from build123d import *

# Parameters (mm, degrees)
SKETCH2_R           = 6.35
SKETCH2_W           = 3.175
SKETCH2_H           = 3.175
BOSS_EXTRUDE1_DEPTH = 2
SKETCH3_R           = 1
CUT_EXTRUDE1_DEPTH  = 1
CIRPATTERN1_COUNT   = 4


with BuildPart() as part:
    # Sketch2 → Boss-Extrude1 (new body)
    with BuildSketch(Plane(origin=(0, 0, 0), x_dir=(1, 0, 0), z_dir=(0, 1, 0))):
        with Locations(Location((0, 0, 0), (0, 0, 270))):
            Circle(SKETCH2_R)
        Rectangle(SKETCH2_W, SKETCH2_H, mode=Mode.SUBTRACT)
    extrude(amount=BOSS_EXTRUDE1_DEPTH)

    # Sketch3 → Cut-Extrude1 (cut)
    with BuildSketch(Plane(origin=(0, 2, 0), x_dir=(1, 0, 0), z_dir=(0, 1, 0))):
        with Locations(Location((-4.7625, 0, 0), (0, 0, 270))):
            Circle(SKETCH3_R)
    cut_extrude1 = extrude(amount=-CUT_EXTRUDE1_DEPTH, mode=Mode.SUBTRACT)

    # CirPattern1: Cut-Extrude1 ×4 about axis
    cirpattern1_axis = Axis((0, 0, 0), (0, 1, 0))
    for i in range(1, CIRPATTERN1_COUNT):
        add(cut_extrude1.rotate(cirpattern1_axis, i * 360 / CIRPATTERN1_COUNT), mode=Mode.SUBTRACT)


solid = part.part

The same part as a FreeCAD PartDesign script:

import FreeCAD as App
import Part
import Sketcher

doc = App.newDocument("Part")
body = doc.addObject("PartDesign::Body", "Body")

# Sketch on XZ plane
sketch1 = body.newObject("Sketcher::SketchObject", "Sketch")
sketch1.AttachmentSupport = (doc.getObject("XZ_Plane"), [""])
sketch1.MapMode = "FlatFace"
sketch1.addGeometry([
    Part.Circle(App.Vector(0, 0, 0), App.Vector(0, 0, 1), 6.3),  # 0
    Part.LineSegment(App.Vector(1.6, 1.6, 0), App.Vector(-1.6, 1.6, 0)),  # 1
    Part.LineSegment(App.Vector(-1.6, 1.6, 0), App.Vector(-1.6, -1.6, 0)),  # 2
    Part.LineSegment(App.Vector(-1.6, -1.6, 0), App.Vector(1.6, -1.6, 0)),  # 3
    Part.LineSegment(App.Vector(1.6, -1.6, 0), App.Vector(1.6, 1.6, 0)),  # 4
], False)
sketch1.addConstraint([
    Sketcher.Constraint("Coincident", 1, 2, 2, 1),
    Sketcher.Constraint("Coincident", 2, 2, 3, 1),
    Sketcher.Constraint("Coincident", 3, 2, 4, 1),
    Sketcher.Constraint("Coincident", 4, 2, 1, 1),
    Sketcher.Constraint("Horizontal", 1),
    Sketcher.Constraint("Vertical", 2),
    Sketcher.Constraint("Horizontal", 3),
    Sketcher.Constraint("Vertical", 4),
    Sketcher.Constraint("Coincident", 0, 3, -1, 1),
    Sketcher.Constraint("Symmetric", 1, 2, 3, 2, -1, 1),
    Sketcher.Constraint("Equal", 3, 2),
    Sketcher.Constraint("Diameter", 0, 12.7),
    Sketcher.Constraint("DistanceX", 1, 2, 1, 1, 3.175),
])
pad1 = body.newObject("PartDesign::Pad", "Pad")
pad1.Profile = sketch1
pad1.Length = 2
pad1.Reversed = True

# Sketch on XZ plane
sketch2 = body.newObject("Sketcher::SketchObject", "Sketch001")
sketch2.AttachmentSupport = (doc.getObject("XZ_Plane"), [""])
sketch2.MapMode = "FlatFace"
sketch2.AttachmentOffset = App.Placement(App.Vector(0, 0, -2), App.Rotation())
sketch2.addGeometry(Part.Circle(App.Vector(-4.8, 0, 0), App.Vector(0, 0, 1), 1), False)
sketch2.addConstraint([
    Sketcher.Constraint("PointOnObject", 0, 3, -1),
    Sketcher.Constraint("Diameter", 0, 2.0),
    Sketcher.Constraint("DistanceX", 0, 3, -1, 1, 4.7625),
])
pocket1 = body.newObject("PartDesign::Pocket", "Pocket")
pocket1.Profile = sketch2
pocket1.Length = 1
pocket1.Reversed = True
doc.recompute()

polarpattern = body.newObject("PartDesign::PolarPattern", "PolarPattern")
polarpattern.Originals = [pocket1]
polarpattern.Axis = (doc.getObject("Y_Axis"), [""])
polarpattern.Angle = 360
polarpattern.Occurrences = 4
body.Tip = polarpattern

doc.recompute()
